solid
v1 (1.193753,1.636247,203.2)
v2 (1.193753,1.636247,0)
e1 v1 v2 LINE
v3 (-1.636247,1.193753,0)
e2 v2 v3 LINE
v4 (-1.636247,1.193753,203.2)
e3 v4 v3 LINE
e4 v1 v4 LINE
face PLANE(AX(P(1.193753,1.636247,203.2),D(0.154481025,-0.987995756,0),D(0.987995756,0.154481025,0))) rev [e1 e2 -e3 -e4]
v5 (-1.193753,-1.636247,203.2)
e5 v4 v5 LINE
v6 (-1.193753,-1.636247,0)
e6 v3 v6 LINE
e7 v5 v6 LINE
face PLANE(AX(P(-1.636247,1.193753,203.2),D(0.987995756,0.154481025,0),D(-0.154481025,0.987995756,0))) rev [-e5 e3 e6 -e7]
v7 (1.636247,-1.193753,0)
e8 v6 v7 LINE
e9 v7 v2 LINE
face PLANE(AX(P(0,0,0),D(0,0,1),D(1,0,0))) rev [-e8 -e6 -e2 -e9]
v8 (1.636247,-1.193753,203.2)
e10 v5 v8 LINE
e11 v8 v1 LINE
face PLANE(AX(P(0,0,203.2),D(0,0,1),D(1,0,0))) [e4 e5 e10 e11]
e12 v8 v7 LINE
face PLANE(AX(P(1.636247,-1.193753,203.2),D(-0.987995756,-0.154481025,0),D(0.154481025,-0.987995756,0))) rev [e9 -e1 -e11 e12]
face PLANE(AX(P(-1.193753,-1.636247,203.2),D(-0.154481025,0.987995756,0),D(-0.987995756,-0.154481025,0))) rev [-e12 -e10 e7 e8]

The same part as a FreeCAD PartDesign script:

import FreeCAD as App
import Part
import Sketcher
Q = App.Units.Quantity


def add_polygon(sketch, points):
    """Adds a closed chain of lines whose ends are joined by coincident constraints."""
    first, n = sketch.GeometryCount, len(points)
    for a, b in zip(points, points[1:] + points[:1]):
        sketch.addGeometry(Part.LineSegment(App.Vector(*a, 0), App.Vector(*b, 0)), False)
    for i in range(n):
        sketch.addConstraint(Sketcher.Constraint("Coincident", first + i, 2, first + (i + 1) % n, 1))

doc = App.newDocument("Part")
body = doc.addObject("PartDesign::Body", "Body")

# Sketch on XY plane
sketch1 = doc.addObject("Sketcher::SketchObject", "Sketch")
body.addObject(sketch1)
sketch1.AttachmentSupport = (doc.XY_Plane, [""])
sketch1.MapMode = "FlatFace"
add_polygon(sketch1, [(1.6, -1.2), (1.2, 1.6), (-1.6, 1.2), (-1.2, -1.6)])  # lines 0-3
sketch1.addConstraint(Sketcher.Constraint("Symmetric", 0, 2, 2, 2, -1, 1))
sketch1.addConstraint(Sketcher.Constraint("Symmetric", 1, 2, 3, 2, -1, 1))
sketch1.addConstraint(Sketcher.Constraint("Perpendicular", 0, 1))
sketch1.addConstraint(Sketcher.Constraint("Equal", 0, 1))
sketch1.addConstraint(Sketcher.Constraint("DistanceX", 1, 2, 0, 2, Q("2.83 mm")))
sketch1.addConstraint(Sketcher.Constraint("Distance", 0, Q("2.864385 mm")))
pad1 = doc.addObject("PartDesign::Pad", "Pad")
body.addObject(pad1)
pad1.Profile = sketch1
pad1.Length = Q("8 in")

doc.recompute()
